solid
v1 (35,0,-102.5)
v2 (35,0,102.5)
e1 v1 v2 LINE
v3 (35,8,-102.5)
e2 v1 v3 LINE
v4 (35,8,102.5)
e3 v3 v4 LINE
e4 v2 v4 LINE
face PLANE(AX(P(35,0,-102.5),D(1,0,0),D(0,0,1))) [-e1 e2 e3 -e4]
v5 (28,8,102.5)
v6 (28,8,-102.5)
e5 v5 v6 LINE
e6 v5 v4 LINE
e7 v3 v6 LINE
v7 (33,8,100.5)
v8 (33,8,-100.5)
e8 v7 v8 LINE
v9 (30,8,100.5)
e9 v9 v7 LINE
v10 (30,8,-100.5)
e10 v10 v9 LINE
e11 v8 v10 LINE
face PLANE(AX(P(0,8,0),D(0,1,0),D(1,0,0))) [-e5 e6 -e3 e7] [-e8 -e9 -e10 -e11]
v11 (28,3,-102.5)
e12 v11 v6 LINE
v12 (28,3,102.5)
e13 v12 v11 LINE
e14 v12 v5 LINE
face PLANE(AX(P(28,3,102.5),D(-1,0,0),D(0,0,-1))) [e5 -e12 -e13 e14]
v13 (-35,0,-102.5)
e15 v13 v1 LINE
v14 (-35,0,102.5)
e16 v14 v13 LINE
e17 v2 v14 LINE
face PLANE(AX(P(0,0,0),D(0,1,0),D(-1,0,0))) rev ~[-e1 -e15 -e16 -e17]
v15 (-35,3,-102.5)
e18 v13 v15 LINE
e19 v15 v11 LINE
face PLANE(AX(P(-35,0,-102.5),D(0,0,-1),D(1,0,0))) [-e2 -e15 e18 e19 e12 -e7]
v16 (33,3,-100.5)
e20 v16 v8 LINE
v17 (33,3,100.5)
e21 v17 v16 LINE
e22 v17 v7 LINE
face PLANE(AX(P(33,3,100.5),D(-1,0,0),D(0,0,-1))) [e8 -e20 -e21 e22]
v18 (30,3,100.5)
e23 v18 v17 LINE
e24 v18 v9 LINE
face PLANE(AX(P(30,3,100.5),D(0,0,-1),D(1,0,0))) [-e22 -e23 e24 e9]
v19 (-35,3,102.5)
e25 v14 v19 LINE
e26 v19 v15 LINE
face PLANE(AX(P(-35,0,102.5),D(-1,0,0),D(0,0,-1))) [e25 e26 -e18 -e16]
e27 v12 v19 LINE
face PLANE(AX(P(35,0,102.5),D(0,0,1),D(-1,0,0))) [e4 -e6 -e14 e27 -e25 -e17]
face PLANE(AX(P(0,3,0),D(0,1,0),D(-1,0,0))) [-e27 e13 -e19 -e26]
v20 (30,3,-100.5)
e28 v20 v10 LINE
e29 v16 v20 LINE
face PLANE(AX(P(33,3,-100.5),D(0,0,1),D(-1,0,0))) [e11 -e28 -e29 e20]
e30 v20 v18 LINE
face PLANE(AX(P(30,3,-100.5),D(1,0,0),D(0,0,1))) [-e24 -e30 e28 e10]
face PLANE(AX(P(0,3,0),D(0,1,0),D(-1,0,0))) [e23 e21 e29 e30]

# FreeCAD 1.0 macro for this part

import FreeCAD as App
import Part
import Sketcher
from FreeCAD import Vector
Q = App.Units.Quantity

doc = App.newDocument("Part")
body = doc.addObject("PartDesign::Body", "Body")

sketch1 = doc.addObject("Sketcher::SketchObject", "Sketch")
body.addObject(sketch1)
sketch1.AttachmentSupport = (doc.XZ_Plane, [""])
sketch1.MapMode = "FlatFace"
sketch1.addGeometry([
    Part.LineSegment(Vector(-35, 102, 0), Vector(35, 102, 0)),
    Part.LineSegment(Vector(35, 102, 0), Vector(35, -102, 0)),
    Part.LineSegment(Vector(35, -102, 0), Vector(-35, -102, 0)),
    Part.LineSegment(Vector(-35, -102, 0), Vector(-35, 102, 0)),
], False)
sketch1.addConstraint([
    Sketcher.Constraint("Coincident", 0, 2, 1, 1),
    Sketcher.Constraint("Coincident", 1, 2, 2, 1),
    Sketcher.Constraint("Coincident", 2, 2, 3, 1),
    Sketcher.Constraint("Coincident", 3, 2, 0, 1),
    Sketcher.Constraint("Horizontal", 0),
    Sketcher.Constraint("Vertical", 1),
    Sketcher.Constraint("Horizontal", 2),
    Sketcher.Constraint("Vertical", 3),
    Sketcher.Constraint("Symmetric", 0, 2, 2, 2, -1, 1),
    Sketcher.Constraint("DistanceX", 0, 1, 0, 2, Q("70 mm")),
    Sketcher.Constraint("DistanceY", 1, 2, 1, 1, Q("205 mm")),
])
pad1 = doc.addObject("PartDesign::Pad", "Pad")
body.addObject(pad1)
pad1.Profile = sketch1
pad1.Length = 3
pad1.Reversed = True

sketch2 = doc.addObject("Sketcher::SketchObject", "Sketch001")
body.addObject(sketch2)
sketch2.AttachmentSupport = (doc.XZ_Plane, [""])
sketch2.MapMode = "FlatFace"
sketch2.AttachmentOffset = App.Placement(Vector(0, 0, -3), App.Rotation())
sketch2.addGeometry([
    Part.LineSegment(Vector(28, -102.5, 0), Vector(28, 102.5, 0)),
    Part.LineSegment(Vector(28, 102.5, 0), Vector(35, 102.5, 0)),
    Part.LineSegment(Vector(35, 102.5, 0), Vector(35, -102.5, 0)),
    Part.LineSegment(Vector(35, -102.5, 0), Vector(28, -102.5, 0)),
    Part.LineSegment(Vector(30, 100.5, 0), Vector(30, -100.5, 0)),
    Part.LineSegment(Vector(30, -100.5, 0), Vector(33, -100.5, 0)),
    Part.LineSegment(Vector(33, -100.5, 0), Vector(33, 100.5, 0)),
    Part.LineSegment(Vector(33, 100.5, 0), Vector(30, 100.5, 0)),
], False)
sketch2.addConstraint([
    Sketcher.Constraint("Coincident", 0, 2, 1, 1),
    Sketcher.Constraint("Coincident", 1, 2, 2, 1),
    Sketcher.Constraint("Coincident", 2, 2, 3, 1),
    Sketcher.Constraint("Coincident", 3, 2, 0, 1),
    Sketcher.Constraint("Coincident", 4, 2, 5, 1),
    Sketcher.Constraint("Coincident", 5, 2, 6, 1),
    Sketcher.Constraint("Coincident", 6, 2, 7, 1),
    Sketcher.Constraint("Coincident", 7, 2, 4, 1),
    Sketcher.Constraint("Vertical", 0),
    Sketcher.Constraint("Horizontal", 1),
    Sketcher.Constraint("Vertical", 2),
    Sketcher.Constraint("Horizontal", 3),
    Sketcher.Constraint("Vertical", 4),
    Sketcher.Constraint("Horizontal", 5),
    Sketcher.Constraint("Vertical", 6),
    Sketcher.Constraint("Horizontal", 7),
    Sketcher.Constraint("DistanceX", 1, 1, 1, 2, Q("7 mm")),
    Sketcher.Constraint("DistanceX", 3, 2, 4, 2, Q("2 mm")),
    Sketcher.Constraint("DistanceY", 3, 2, 4, 2, Q("2 mm")),
    Sketcher.Constraint("DistanceX", 5, 2, 2, 2, Q("2 mm")),
    Sketcher.Constraint("DistanceY", 6, 2, 1, 2, Q("2 mm")),
    Sketcher.Constraint("DistanceY", 0, 1, 0, 2, Q("205 mm")),
    Sketcher.Constraint("DistanceX", -1, 1, 0, 2, Q("28 mm")),
    Sketcher.Constraint("DistanceY", -1, 1, 0, 2, Q("102.5 mm")),
])
pad2 = doc.addObject("PartDesign::Pad", "Pad001")
body.addObject(pad2)
pad2.Profile = sketch2
pad2.Length = 5
pad2.Reversed = True

doc.recompute()
